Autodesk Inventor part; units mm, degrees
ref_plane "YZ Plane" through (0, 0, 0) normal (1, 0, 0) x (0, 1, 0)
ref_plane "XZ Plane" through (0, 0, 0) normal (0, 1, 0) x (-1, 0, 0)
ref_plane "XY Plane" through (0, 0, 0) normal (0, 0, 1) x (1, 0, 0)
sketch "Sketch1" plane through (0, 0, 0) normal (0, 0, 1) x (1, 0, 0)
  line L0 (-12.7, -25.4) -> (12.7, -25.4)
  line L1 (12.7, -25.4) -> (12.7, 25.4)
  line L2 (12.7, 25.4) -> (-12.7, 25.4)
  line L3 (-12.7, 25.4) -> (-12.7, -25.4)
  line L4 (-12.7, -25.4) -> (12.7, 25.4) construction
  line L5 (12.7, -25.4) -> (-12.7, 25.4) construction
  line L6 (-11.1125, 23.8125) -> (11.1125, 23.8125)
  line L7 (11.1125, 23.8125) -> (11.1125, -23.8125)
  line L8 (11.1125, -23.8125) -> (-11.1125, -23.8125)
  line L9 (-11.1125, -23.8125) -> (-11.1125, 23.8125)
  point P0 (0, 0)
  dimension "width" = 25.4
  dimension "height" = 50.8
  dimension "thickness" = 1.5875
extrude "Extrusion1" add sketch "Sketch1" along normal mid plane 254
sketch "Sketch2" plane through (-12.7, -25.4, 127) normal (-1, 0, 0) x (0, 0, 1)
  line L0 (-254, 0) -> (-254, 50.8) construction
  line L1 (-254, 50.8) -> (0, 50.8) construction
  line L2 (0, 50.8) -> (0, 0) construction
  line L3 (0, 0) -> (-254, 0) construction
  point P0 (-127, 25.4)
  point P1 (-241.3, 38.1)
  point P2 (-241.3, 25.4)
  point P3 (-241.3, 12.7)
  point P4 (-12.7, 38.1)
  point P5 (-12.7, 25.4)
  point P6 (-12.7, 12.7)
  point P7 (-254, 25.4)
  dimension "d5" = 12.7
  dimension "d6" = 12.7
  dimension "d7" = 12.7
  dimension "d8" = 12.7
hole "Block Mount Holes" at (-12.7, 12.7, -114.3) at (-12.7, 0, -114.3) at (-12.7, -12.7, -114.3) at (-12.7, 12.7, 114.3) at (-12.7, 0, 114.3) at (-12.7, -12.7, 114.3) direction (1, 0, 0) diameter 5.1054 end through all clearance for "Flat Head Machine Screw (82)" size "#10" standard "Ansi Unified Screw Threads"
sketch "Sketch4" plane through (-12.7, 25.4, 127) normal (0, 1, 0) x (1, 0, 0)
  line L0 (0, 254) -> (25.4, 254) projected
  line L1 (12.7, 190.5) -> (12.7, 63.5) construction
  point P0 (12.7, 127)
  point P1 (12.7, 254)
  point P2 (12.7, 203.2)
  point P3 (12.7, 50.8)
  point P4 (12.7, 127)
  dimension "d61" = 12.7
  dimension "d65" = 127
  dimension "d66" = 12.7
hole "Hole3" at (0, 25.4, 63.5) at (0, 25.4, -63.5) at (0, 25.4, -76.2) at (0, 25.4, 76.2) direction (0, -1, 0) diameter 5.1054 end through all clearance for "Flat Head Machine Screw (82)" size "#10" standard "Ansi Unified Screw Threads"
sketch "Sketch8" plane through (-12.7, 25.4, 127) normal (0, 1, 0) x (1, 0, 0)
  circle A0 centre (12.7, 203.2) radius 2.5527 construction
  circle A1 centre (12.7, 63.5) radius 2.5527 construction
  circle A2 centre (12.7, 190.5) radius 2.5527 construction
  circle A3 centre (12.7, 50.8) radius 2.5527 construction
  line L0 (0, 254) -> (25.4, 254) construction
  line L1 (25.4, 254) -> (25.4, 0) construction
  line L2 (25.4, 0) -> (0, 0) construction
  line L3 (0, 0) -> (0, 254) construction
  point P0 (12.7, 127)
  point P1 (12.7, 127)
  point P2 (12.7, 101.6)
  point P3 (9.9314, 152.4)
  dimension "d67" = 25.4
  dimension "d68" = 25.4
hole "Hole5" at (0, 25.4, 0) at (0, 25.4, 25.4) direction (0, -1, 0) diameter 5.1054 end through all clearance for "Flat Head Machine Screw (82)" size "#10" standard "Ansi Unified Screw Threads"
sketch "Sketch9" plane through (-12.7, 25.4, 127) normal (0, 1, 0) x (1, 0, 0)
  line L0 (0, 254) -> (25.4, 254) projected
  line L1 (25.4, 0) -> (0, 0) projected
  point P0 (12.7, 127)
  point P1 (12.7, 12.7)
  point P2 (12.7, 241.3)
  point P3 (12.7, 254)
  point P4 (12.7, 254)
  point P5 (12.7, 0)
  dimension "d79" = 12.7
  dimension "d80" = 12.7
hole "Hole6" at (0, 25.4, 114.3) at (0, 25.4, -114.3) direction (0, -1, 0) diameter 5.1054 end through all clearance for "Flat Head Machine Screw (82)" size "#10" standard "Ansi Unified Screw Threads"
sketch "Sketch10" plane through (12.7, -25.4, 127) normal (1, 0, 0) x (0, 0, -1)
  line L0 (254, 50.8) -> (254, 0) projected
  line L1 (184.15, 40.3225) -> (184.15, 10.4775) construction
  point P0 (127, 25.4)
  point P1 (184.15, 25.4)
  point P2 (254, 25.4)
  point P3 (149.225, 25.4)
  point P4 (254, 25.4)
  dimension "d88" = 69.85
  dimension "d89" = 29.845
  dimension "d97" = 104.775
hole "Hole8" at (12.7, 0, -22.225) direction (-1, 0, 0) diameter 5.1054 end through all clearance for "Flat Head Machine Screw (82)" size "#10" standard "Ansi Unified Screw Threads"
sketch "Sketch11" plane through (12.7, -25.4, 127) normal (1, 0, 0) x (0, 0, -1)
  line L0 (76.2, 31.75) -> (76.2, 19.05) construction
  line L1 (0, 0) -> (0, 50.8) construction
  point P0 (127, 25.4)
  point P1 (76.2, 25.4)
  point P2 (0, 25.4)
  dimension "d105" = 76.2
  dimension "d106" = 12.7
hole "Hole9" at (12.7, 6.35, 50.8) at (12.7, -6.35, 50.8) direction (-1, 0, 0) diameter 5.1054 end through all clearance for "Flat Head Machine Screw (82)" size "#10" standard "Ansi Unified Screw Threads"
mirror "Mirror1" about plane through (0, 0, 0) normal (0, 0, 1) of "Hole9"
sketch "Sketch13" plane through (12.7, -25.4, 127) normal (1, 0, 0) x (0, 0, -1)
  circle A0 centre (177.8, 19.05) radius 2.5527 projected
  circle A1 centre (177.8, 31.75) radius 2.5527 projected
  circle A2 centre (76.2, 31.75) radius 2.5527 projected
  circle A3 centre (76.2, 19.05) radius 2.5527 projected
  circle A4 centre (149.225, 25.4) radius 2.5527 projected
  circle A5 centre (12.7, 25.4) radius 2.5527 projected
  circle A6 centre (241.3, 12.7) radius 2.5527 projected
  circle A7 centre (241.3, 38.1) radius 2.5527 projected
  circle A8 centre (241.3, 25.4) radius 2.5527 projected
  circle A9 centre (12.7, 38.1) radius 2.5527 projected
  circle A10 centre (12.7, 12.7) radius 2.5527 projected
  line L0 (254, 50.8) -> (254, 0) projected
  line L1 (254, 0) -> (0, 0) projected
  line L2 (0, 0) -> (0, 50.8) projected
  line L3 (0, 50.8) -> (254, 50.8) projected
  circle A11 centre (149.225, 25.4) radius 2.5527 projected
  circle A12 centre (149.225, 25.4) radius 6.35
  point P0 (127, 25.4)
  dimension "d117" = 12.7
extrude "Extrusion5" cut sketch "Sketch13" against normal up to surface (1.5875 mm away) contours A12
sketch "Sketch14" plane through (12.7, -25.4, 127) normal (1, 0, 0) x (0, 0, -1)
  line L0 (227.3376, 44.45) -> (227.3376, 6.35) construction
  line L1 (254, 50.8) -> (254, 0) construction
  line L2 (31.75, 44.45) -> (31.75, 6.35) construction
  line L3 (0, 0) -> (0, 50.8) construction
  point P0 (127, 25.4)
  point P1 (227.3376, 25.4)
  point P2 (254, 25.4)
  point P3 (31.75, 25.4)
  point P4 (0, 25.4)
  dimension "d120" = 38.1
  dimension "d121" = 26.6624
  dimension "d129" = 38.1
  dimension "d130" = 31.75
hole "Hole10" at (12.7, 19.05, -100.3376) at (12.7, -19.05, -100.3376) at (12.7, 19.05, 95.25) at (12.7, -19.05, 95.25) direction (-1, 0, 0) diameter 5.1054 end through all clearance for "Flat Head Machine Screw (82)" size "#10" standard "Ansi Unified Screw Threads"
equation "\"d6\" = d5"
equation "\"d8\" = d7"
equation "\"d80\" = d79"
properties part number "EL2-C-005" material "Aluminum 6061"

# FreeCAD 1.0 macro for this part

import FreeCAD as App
import Part
import Sketcher
Q = App.Units.Quantity


def add_polygon(sketch, points):
    """Adds a closed chain of lines whose ends are joined by coincident constraints."""
    first, n = sketch.GeometryCount, len(points)
    for a, b in zip(points, points[1:] + points[:1]):
        sketch.addGeometry(Part.LineSegment(App.Vector(*a, 0), App.Vector(*b, 0)), False)
    for i in range(n):
        sketch.addConstraint(Sketcher.Constraint("Coincident", first + i, 2, first + (i + 1) % n, 1))

doc = App.newDocument("Part")
body = doc.addObject("PartDesign::Body", "Body")

# Sketch on XY plane
sketch1 = doc.addObject("Sketcher::SketchObject", "Sketch")
body.addObject(sketch1)
sketch1.AttachmentSupport = (doc.XY_Plane, [""])
sketch1.MapMode = "FlatFace"
add_polygon(sketch1, [(-13, 25), (-13, -25), (13, -25), (13, 25)])  # lines 0-3
add_polygon(sketch1, [(-11, -24), (-11, 24), (11, 24), (11, -24)])  # lines 4-7
sketch1.addConstraint(Sketcher.Constraint("Vertical", 0))
sketch1.addConstraint(Sketcher.Constraint("Horizontal", 1))
sketch1.addConstraint(Sketcher.Constraint("Vertical", 2))
sketch1.addConstraint(Sketcher.Constraint("Horizontal", 3))
sketch1.addConstraint(Sketcher.Constraint("Vertical", 4))
sketch1.addConstraint(Sketcher.Constraint("Horizontal", 5))
sketch1.addConstraint(Sketcher.Constraint("Vertical", 6))
sketch1.addConstraint(Sketcher.Constraint("Horizontal", 7))
sketch1.addConstraint(Sketcher.Constraint("Symmetric", 0, 2, 2, 2, -1, 1))
sketch1.addConstraint(Sketcher.Constraint("Symmetric", 4, 2, 6, 2, -1, 1))
sketch1.addConstraint(Sketcher.Constraint("DistanceX", 1, 1, 1, 2, Q("1 in")))
sketch1.addConstraint(Sketcher.Constraint("DistanceY", 0, 2, 0, 1, Q("2 in")))
sketch1.addConstraint(Sketcher.Constraint("DistanceX", 3, 2, 4, 2, Q("0.0625 in")))
sketch1.addConstraint(Sketcher.Constraint("DistanceY", 4, 2, 3, 2, Q("0.0625 in")))
pad1 = doc.addObject("PartDesign::Pad", "Pad")
body.addObject(pad1)
pad1.Profile = sketch1
pad1.Length = Q("10 in")
pad1.Midplane = True

# Sketch on YZ plane
sketch2 = doc.addObject("Sketcher::SketchObject", "Sketch001")
body.addObject(sketch2)
sketch2.AttachmentSupport = (doc.YZ_Plane, [""])
sketch2.MapMode = "FlatFace"
sketch2.AttachmentOffset = App.Placement(App.Vector(0, 0, -0.5 * 25.4), App.Rotation())
sketch2.addGeometry(Part.Circle(App.Vector(12.7, -114.3, 0), App.Vector(0, 0, 1), 2.6), False)
sketch2.addGeometry(Part.Circle(App.Vector(0, -114.3, 0), App.Vector(0, 0, 1), 2.6), False)
sketch2.addGeometry(Part.Circle(App.Vector(-12.7, -114.3, 0), App.Vector(0, 0, 1), 2.6), False)
sketch2.addGeometry(Part.Circle(App.Vector(12.7, 114.3, 0), App.Vector(0, 0, 1), 2.6), False)
sketch2.addGeometry(Part.Circle(App.Vector(0, 114.3, 0), App.Vector(0, 0, 1), 2.6), False)
sketch2.addGeometry(Part.Circle(App.Vector(-12.7, 114.3, 0), App.Vector(0, 0, 1), 2.6), False)
sketch2.addConstraint(Sketcher.Constraint("Equal", 0, 1))
sketch2.addConstraint(Sketcher.Constraint("Equal", 1, 2))
sketch2.addConstraint(Sketcher.Constraint("Equal", 2, 3))
sketch2.addConstraint(Sketcher.Constraint("Equal", 3, 4))
sketch2.addConstraint(Sketcher.Constraint("Equal", 4, 5))
sketch2.addConstraint(Sketcher.Constraint("Symmetric", 2, 3, 3, 3, -1, 1))
sketch2.addConstraint(Sketcher.Constraint("Symmetric", 1, 3, 4, 3, -1, 1))
sketch2.addConstraint(Sketcher.Constraint("Symmetric", 0, 3, 5, 3, -1, 1))
sketch2.addConstraint(Sketcher.Constraint("Symmetric", 0, 3, 2, 3, -2))
sketch2.addConstraint(Sketcher.Constraint("PointOnObject", 1, 3, -2))
sketch2.addConstraint(Sketcher.Constraint("Horizontal", 0, 3, 1, 3))
sketch2.addConstraint(Sketcher.Constraint("Diameter", 0, Q("0.201 in")))
sketch2.addConstraint(Sketcher.Constraint("DistanceX", 2, 3, 0, 3, Q("1 in")))
sketch2.addConstraint(Sketcher.Constraint("DistanceY", 0, 3, 3, 3, Q("9 in")))
doc.recompute()
hole = doc.addObject("PartDesign::Hole", "Hole")
body.addObject(hole)
hole.Profile = sketch2
hole.ThreadType = "None"
hole.Diameter = Q("0.201 in")
hole.DepthType = "ThroughAll"
hole.Reversed = True

# Sketch on XZ plane
sketch3 = doc.addObject("Sketcher::SketchObject", "Sketch002")
body.addObject(sketch3)
sketch3.AttachmentSupport = (doc.XZ_Plane, [""])
sketch3.MapMode = "FlatFace"
sketch3.AttachmentOffset = App.Placement(App.Vector(0, 0, -1 * 25.4), App.Rotation())
sketch3.addGeometry(Part.Circle(App.Vector(0, 63.5, 0), App.Vector(0, 0, 1), 2.6), False)
sketch3.addGeometry(Part.Circle(App.Vector(0, -63.5, 0), App.Vector(0, 0, 1), 2.6), False)
sketch3.addGeometry(Part.Circle(App.Vector(0, -76.2, 0), App.Vector(0, 0, 1), 2.6), False)
sketch3.addGeometry(Part.Circle(App.Vector(0, 76.2, 0), App.Vector(0, 0, 1), 2.6), False)
sketch3.addConstraint(Sketcher.Constraint("Equal", 0, 1))
sketch3.addConstraint(Sketcher.Constraint("Equal", 1, 2))
sketch3.addConstraint(Sketcher.Constraint("Equal", 2, 3))
sketch3.addConstraint(Sketcher.Constraint("Symmetric", 0, 3, 1, 3, -1, 1))
sketch3.addConstraint(Sketcher.Constraint("Symmetric", 2, 3, 3, 3, -1, 1))
sketch3.addConstraint(Sketcher.Constraint("PointOnObject", 0, 3, -2))
sketch3.addConstraint(Sketcher.Constraint("PointOnObject", 2, 3, -2))
sketch3.addConstraint(Sketcher.Constraint("Diameter", 0, Q("0.201 in")))
sketch3.addConstraint(Sketcher.Constraint("DistanceY", 2, 3, -1, 1, Q("3 in")))
sketch3.addConstraint(Sketcher.Constraint("DistanceY", 1, 3, 0, 3, Q("5 in")))
doc.recompute()
hole2 = doc.addObject("PartDesign::Hole", "Hole001")
body.addObject(hole2)
hole2.Profile = sketch3
hole2.ThreadType = "None"
hole2.Diameter = Q("0.201 in")
hole2.DepthType = "ThroughAll"
hole2.Reversed = True

# Sketch on XZ plane
sketch4 = doc.addObject("Sketcher::SketchObject", "Sketch003")
body.addObject(sketch4)
sketch4.AttachmentSupport = (doc.XZ_Plane, [""])
sketch4.MapMode = "FlatFace"
sketch4.AttachmentOffset = App.Placement(App.Vector(0, 0, -1 * 25.4), App.Rotation())
sketch4.addGeometry(Part.Circle(App.Vector(0, 0, 0), App.Vector(0, 0, 1), 2.6), False)
sketch4.addGeometry(Part.Circle(App.Vector(0, 25.4, 0), App.Vector(0, 0, 1), 2.6), False)
sketch4.addConstraint(Sketcher.Constraint("Coincident", 0, 3, -1, 1))
sketch4.addConstraint(Sketcher.Constraint("Equal", 0, 1))
sketch4.addConstraint(Sketcher.Constraint("PointOnObject", 1, 3, -2))
sketch4.addConstraint(Sketcher.Constraint("Diameter", 0, Q("0.201 in")))
sketch4.addConstraint(Sketcher.Constraint("DistanceY", -1, 1, 1, 3, Q("1 in")))
doc.recompute()
hole3 = doc.addObject("PartDesign::Hole", "Hole002")
body.addObject(hole3)
hole3.Profile = sketch4
hole3.ThreadType = "None"
hole3.Diameter = Q("0.201 in")
hole3.DepthType = "ThroughAll"
hole3.Reversed = True

# Sketch on XZ plane
sketch5 = doc.addObject("Sketcher::SketchObject", "Sketch004")
body.addObject(sketch5)
sketch5.AttachmentSupport = (doc.XZ_Plane, [""])
sketch5.MapMode = "FlatFace"
sketch5.AttachmentOffset = App.Placement(App.Vector(0, 0, -1 * 25.4), App.Rotation())
sketch5.addGeometry(Part.Circle(App.Vector(0, 114.3, 0), App.Vector(0, 0, 1), 2.6), False)
sketch5.addGeometry(Part.Circle(App.Vector(0, -114.3, 0), App.Vector(0, 0, 1), 2.6), False)
sketch5.addConstraint(Sketcher.Constraint("Equal", 0, 1))
sketch5.addConstraint(Sketcher.Constraint("Symmetric", 0, 3, 1, 3, -1, 1))
sketch5.addConstraint(Sketcher.Constraint("PointOnObject", 0, 3, -2))
sketch5.addConstraint(Sketcher.Constraint("Diameter", 0, Q("0.201 in")))
sketch5.addConstraint(Sketcher.Constraint("DistanceY", 1, 3, 0, 3, Q("9 in")))
doc.recompute()
hole4 = doc.addObject("PartDesign::Hole", "Hole003")
body.addObject(hole4)
hole4.Profile = sketch5
hole4.ThreadType = "None"
hole4.Diameter = Q("0.201 in")
hole4.DepthType = "ThroughAll"
hole4.Reversed = True

# Sketch on YZ plane
sketch6 = doc.addObject("Sketcher::SketchObject", "Sketch005")
body.addObject(sketch6)
sketch6.AttachmentSupport = (doc.YZ_Plane, [""])
sketch6.MapMode = "FlatFace"
sketch6.AttachmentOffset = App.Placement(App.Vector(0, 0, 0.5 * 25.4), App.Rotation())
sketch6.addGeometry(Part.Circle(App.Vector(0, -22.2, 0), App.Vector(0, 0, 1), 2.6), False)
sketch6.addConstraint(Sketcher.Constraint("PointOnObject", 0, 3, -2))
sketch6.addConstraint(Sketcher.Constraint("Diameter", 0, Q("0.201 in")))
sketch6.addConstraint(Sketcher.Constraint("DistanceY", 0, 3, -1, 1, Q("0.875 in")))
doc.recompute()
hole5 = doc.addObject("PartDesign::Hole", "Hole004")
body.addObject(hole5)
hole5.Profile = sketch6
hole5.ThreadType = "None"
hole5.Diameter = Q("0.201 in")
hole5.DepthType = "ThroughAll"

# Sketch on YZ plane
sketch7 = doc.addObject("Sketcher::SketchObject", "Sketch006")
body.addObject(sketch7)
sketch7.AttachmentSupport = (doc.YZ_Plane, [""])
sketch7.MapMode = "FlatFace"
sketch7.AttachmentOffset = App.Placement(App.Vector(0, 0, 0.5 * 25.4), App.Rotation())
sketch7.addGeometry(Part.Circle(App.Vector(6.3, 50.8, 0), App.Vector(0, 0, 1), 2.6), False)
sketch7.addGeometry(Part.Circle(App.Vector(-6.3, 50.8, 0), App.Vector(0, 0, 1), 2.6), False)
sketch7.addConstraint(Sketcher.Constraint("Equal", 0, 1))
sketch7.addConstraint(Sketcher.Constraint("Symmetric", 0, 3, 1, 3, -2))
sketch7.addConstraint(Sketcher.Constraint("Diameter", 0, Q("0.201 in")))
sketch7.addConstraint(Sketcher.Constraint("DistanceY", -1, 1, 0, 3, Q("2 in")))
sketch7.addConstraint(Sketcher.Constraint("DistanceX", 1, 3, 0, 3, Q("0.5 in")))
doc.recompute()
hole6 = doc.addObject("PartDesign::Hole", "Hole005")
body.addObject(hole6)
hole6.Profile = sketch7
hole6.ThreadType = "None"
hole6.Diameter = Q("0.201 in")
hole6.DepthType = "ThroughAll"
doc.recompute()

mirrored = doc.addObject("PartDesign::Mirrored", "Mirrored")
body.addObject(mirrored)
mirrored.Originals = [hole6]
mirrored.MirrorPlane = (doc.XY_Plane, [""])
body.Tip = mirrored

# Sketch on YZ plane
sketch8 = doc.addObject("Sketcher::SketchObject", "Sketch007")
body.addObject(sketch8)
sketch8.AttachmentSupport = (doc.YZ_Plane, [""])
sketch8.MapMode = "FlatFace"
sketch8.AttachmentOffset = App.Placement(App.Vector(0, 0, 0.5 * 25.4), App.Rotation())
sketch8.addGeometry(Part.Circle(App.Vector(0, -22.2, 0), App.Vector(0, 0, 1), 6.3), False)
sketch8.addGeometry(Part.Circle(App.Vector(0, -22.2, 0), App.Vector(0, 0, 1), 2.6), False)
sketch8.addConstraint(Sketcher.Constraint("Coincident", 1, 3, 0, 3))
sketch8.addConstraint(Sketcher.Constraint("PointOnObject", 0, 3, -2))
sketch8.addConstraint(Sketcher.Constraint("Diameter", 0, Q("0.5 in")))
sketch8.addConstraint(Sketcher.Constraint("Diameter", 1, Q("0.201 in")))
sketch8.addConstraint(Sketcher.Constraint("DistanceY", 0, 3, -1, 1, Q("0.875 in")))
pocket1 = doc.addObject("PartDesign::Pocket", "Pocket")
body.addObject(pocket1)
pocket1.Profile = sketch8
pocket1.Length = Q("0.0625 in")

# Sketch on YZ plane
sketch9 = doc.addObject("Sketcher::SketchObject", "Sketch008")
body.addObject(sketch9)
sketch9.AttachmentSupport = (doc.YZ_Plane, [""])
sketch9.MapMode = "FlatFace"
sketch9.AttachmentOffset = App.Placement(App.Vector(0, 0, 0.5 * 25.4), App.Rotation())
sketch9.addGeometry(Part.Circle(App.Vector(19.1, -100.3, 0), App.Vector(0, 0, 1), 2.6), False)
sketch9.addGeometry(Part.Circle(App.Vector(-19.1, -100.3, 0), App.Vector(0, 0, 1), 2.6), False)
sketch9.addGeometry(Part.Circle(App.Vector(19.1, 95.2, 0), App.Vector(0, 0, 1), 2.6), False)
sketch9.addGeometry(Part.Circle(App.Vector(-19.1, 95.2, 0), App.Vector(0, 0, 1), 2.6), False)
sketch9.addConstraint(Sketcher.Constraint("Equal", 0, 1))
sketch9.addConstraint(Sketcher.Constraint("Equal", 1, 2))
sketch9.addConstraint(Sketcher.Constraint("Equal", 2, 3))
sketch9.addConstraint(Sketcher.Constraint("Symmetric", 0, 3, 1, 3, -2))
sketch9.addConstraint(Sketcher.Constraint("Symmetric", 2, 3, 3, 3, -2))
sketch9.addConstraint(Sketcher.Constraint("Vertical", 0, 3, 2, 3))
sketch9.addConstraint(Sketcher.Constraint("Diameter", 0, Q("0.201 in")))
sketch9.addConstraint(Sketcher.Constraint("DistanceX", 1, 3, 0, 3, Q("1.5 in")))
sketch9.addConstraint(Sketcher.Constraint("DistanceY", -1, 1, 2, 3, Q("3.75 in")))
sketch9.addConstraint(Sketcher.Constraint("DistanceY", 0, 3, -1, 1, Q("3.9503 in")))
doc.recompute()
hole7 = doc.addObject("PartDesign::Hole", "Hole006")
body.addObject(hole7)
hole7.Profile = sketch9
hole7.ThreadType = "None"
hole7.Diameter = Q("0.201 in")
hole7.DepthType = "ThroughAll"

doc.recompute()
